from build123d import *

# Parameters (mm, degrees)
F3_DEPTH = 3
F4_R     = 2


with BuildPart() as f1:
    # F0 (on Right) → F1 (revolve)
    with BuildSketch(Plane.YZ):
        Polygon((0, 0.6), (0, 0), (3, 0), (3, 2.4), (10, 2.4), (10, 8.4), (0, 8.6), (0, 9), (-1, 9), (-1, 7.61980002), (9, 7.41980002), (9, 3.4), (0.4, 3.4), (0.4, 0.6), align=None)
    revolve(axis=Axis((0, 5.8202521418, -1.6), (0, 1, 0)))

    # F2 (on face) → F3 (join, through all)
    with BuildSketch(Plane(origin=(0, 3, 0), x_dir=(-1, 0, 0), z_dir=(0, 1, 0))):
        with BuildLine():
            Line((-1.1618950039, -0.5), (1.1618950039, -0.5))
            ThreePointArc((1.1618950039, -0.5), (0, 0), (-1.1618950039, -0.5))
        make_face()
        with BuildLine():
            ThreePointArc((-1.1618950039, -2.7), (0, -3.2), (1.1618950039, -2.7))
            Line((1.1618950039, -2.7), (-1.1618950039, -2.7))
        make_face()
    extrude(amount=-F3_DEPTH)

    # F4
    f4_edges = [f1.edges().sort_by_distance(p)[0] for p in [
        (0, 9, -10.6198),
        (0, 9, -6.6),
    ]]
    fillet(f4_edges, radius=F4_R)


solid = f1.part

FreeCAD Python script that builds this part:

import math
import FreeCAD as App
import Part
import Sketcher
from FreeCAD import Vector
Q = App.Units.Quantity


def edges_at(feature, points):
    """Names of the edges that pass closest to the given points."""
    edges = feature.Shape.Edges
    near = lambda p: min(range(len(edges)), key=lambda i: edges[i].distToShape(Part.Vertex(*p))[0])
    return sorted({f"Edge{near(p) + 1}" for p in points})

doc = App.newDocument("Part")
body = doc.addObject("PartDesign::Body", "Body")

# Sketch on YZ plane
sketch1 = body.newObject("Sketcher::SketchObject", "Sketch")
sketch1.AttachmentSupport = (doc.getObject("YZ_Plane"), [""])
sketch1.MapMode = "FlatFace"
sketch1.addGeometry([
    Part.LineSegment(Vector(0, 0.6, 0), Vector(0, 0, 0)),  # 0
    Part.LineSegment(Vector(0, 0, 0), Vector(3, 0, 0)),  # 1
    Part.LineSegment(Vector(3, 0, 0), Vector(3, 2.4, 0)),  # 2
    Part.LineSegment(Vector(3, 2.4, 0), Vector(10, 2.4, 0)),  # 3
    Part.LineSegment(Vector(10, 2.4, 0), Vector(10, 8.4, 0)),  # 4
    Part.LineSegment(Vector(10, 8.4, 0), Vector(0, 8.6, 0)),  # 5
    Part.LineSegment(Vector(0, 8.6, 0), Vector(0, 9, 0)),  # 6
    Part.LineSegment(Vector(0, 9, 0), Vector(-1, 9, 0)),  # 7
    Part.LineSegment(Vector(-1, 9, 0), Vector(-1, 7.62, 0)),  # 8
    Part.LineSegment(Vector(-1, 7.62, 0), Vector(9, 7.42, 0)),  # 9
    Part.LineSegment(Vector(9, 7.42, 0), Vector(9, 3.4, 0)),  # 10
    Part.LineSegment(Vector(9, 3.4, 0), Vector(0.4, 3.4, 0)),  # 11
    Part.LineSegment(Vector(0.4, 3.4, 0), Vector(0.4, 0.6, 0)),  # 12
    Part.LineSegment(Vector(0.4, 0.6, 0), Vector(0, 0.6, 0)),  # 13
], False)
sketch1.addGeometry(Part.LineSegment(Vector(-1, -1.6, 0), Vector(10, -1.6, 0)), True)  # axis
sketch1.addConstraint([
    Sketcher.Constraint("Coincident", 0, 2, 1, 1),
    Sketcher.Constraint("Coincident", 1, 2, 2, 1),
    Sketcher.Constraint("Coincident", 2, 2, 3, 1),
    Sketcher.Constraint("Coincident", 3, 2, 4, 1),
    Sketcher.Constraint("Coincident", 4, 2, 5, 1),
    Sketcher.Constraint("Coincident", 5, 2, 6, 1),
    Sketcher.Constraint("Coincident", 6, 2, 7, 1),
    Sketcher.Constraint("Coincident", 7, 2, 8, 1),
    Sketcher.Constraint("Coincident", 8, 2, 9, 1),
    Sketcher.Constraint("Coincident", 9, 2, 10, 1),
    Sketcher.Constraint("Coincident", 10, 2, 11, 1),
    Sketcher.Constraint("Coincident", 11, 2, 12, 1),
    Sketcher.Constraint("Coincident", 12, 2, 13, 1),
    Sketcher.Constraint("Coincident", 13, 2, 0, 1),
    Sketcher.Constraint("Vertical", 0),
    Sketcher.Constraint("Horizontal", 1),
    Sketcher.Constraint("Vertical", 2),
    Sketcher.Constraint("Horizontal", 3),
    Sketcher.Constraint("Vertical", 4),
    Sketcher.Constraint("Vertical", 6),
    Sketcher.Constraint("Horizontal", 7),
    Sketcher.Constraint("Vertical", 8),
    Sketcher.Constraint("Vertical", 10),
    Sketcher.Constraint("Horizontal", 11),
    Sketcher.Constraint("Vertical", 12),
    Sketcher.Constraint("Horizontal", 13),
    Sketcher.Constraint("Horizontal", 14),
    Sketcher.Constraint("Coincident", 0, 2, -1, 1),
    Sketcher.Constraint("PointOnObject", 5, 2, -2),
    Sketcher.Constraint("Parallel", 5, 9),
    Sketcher.Constraint("Vertical", 8, 2, 14, 1),
    Sketcher.Constraint("Vertical", 4, 2, 14, 2),
    Sketcher.Constraint("Equal", 13, 6),
    Sketcher.Constraint("Equal", 5, 9),
    Sketcher.Constraint("DistanceX", 1, 1, 1, 2, Q("3 mm")),
    Sketcher.Constraint("DistanceX", 3, 1, 3, 2, Q("7 mm")),
    Sketcher.Constraint("DistanceX", 7, 2, 7, 1, Q("1 mm")),
    Sketcher.Constraint("DistanceY", 4, 1, 4, 2, Q("6 mm")),
    Sketcher.Constraint("DistanceX", 11, 2, 11, 1, Q("8.6 mm")),
    Sketcher.Constraint("DistanceY", 0, 2, 0, 1, Q("0.6 mm")),
    Sketcher.Constraint("DistanceY", 2, 1, 2, 2, Q("2.4 mm")),
    Sketcher.Constraint("DistanceY", 12, 2, 12, 1, Q("2.8 mm")),
    Sketcher.Constraint("DistanceY", -1, 1, 6, 2, Q("9 mm")),
    Sketcher.Constraint("DistanceY", 14, 1, 11, 2, Q("5 mm")),
    Sketcher.Constraint("DistanceY", 8, 2, 8, 1, Q("1.3802 mm")),
])
revolution = body.newObject("PartDesign::Revolution", "Revolution")
revolution.Profile = sketch1
revolution.ReferenceAxis = (sketch1, ["Axis0"])
revolution.Angle = 360

# Sketch on XZ plane
sketch2 = body.newObject("Sketcher::SketchObject", "Sketch001")
sketch2.AttachmentSupport = (doc.getObject("XZ_Plane"), [""])
sketch2.MapMode = "FlatFace"
sketch2.AttachmentOffset = App.Placement(Vector(0, 0, -3), App.Rotation())
sketch2.addGeometry([
    Part.LineSegment(Vector(1.2, -0.5, 0), Vector(-1.2, -0.5, 0)),
    Part.ArcOfCircle(Part.Circle(Vector(0, -1.6, 0), Vector(0, 0, 1), 1.6), math.radians(43), math.radians(137)),
    Part.ArcOfCircle(Part.Circle(Vector(0, -1.6, 0), Vector(0, 0, 1), 1.6), math.radians(-137), math.radians(-43)),
    Part.LineSegment(Vector(-1.2, -2.7, 0), Vector(1.2, -2.7, 0)),
], False)
sketch2.addConstraint([
    Sketcher.Constraint("Coincident", 0, 1, 1, 1),
    Sketcher.Constraint("Coincident", 1, 2, 0, 2),
    Sketcher.Constraint("Coincident", 2, 1, 3, 1),
    Sketcher.Constraint("Coincident", 3, 2, 2, 2),
    Sketcher.Constraint("Horizontal", 0),
    Sketcher.Constraint("Horizontal", 3),
    Sketcher.Constraint("Coincident", 2, 3, 1, 3),
    Sketcher.Constraint("Equal", 1, 2),
    Sketcher.Constraint("PointOnObject", 1, 3, -2),
    Sketcher.Constraint("Vertical", 1, 2, 2, 1),
    Sketcher.Constraint("Radius", 1, Q("1.6 mm")),
    Sketcher.Constraint("DistanceY", 1, 3, -1, 1, Q("1.6 mm")),
    Sketcher.Constraint("DistanceY", 0, 1, -1, 1, Q("0.5 mm")),
])
pad1 = body.newObject("PartDesign::Pad", "Pad")
pad1.Profile = sketch2
pad1.Length = 3
doc.recompute()

fillet = body.newObject("PartDesign::Fillet", "Fillet")
fillet.Base = (pad1, edges_at(pad1, [(0, 9, -10.62), (0, 9, -6.6)]))
fillet.Radius = 2

doc.recompute()
